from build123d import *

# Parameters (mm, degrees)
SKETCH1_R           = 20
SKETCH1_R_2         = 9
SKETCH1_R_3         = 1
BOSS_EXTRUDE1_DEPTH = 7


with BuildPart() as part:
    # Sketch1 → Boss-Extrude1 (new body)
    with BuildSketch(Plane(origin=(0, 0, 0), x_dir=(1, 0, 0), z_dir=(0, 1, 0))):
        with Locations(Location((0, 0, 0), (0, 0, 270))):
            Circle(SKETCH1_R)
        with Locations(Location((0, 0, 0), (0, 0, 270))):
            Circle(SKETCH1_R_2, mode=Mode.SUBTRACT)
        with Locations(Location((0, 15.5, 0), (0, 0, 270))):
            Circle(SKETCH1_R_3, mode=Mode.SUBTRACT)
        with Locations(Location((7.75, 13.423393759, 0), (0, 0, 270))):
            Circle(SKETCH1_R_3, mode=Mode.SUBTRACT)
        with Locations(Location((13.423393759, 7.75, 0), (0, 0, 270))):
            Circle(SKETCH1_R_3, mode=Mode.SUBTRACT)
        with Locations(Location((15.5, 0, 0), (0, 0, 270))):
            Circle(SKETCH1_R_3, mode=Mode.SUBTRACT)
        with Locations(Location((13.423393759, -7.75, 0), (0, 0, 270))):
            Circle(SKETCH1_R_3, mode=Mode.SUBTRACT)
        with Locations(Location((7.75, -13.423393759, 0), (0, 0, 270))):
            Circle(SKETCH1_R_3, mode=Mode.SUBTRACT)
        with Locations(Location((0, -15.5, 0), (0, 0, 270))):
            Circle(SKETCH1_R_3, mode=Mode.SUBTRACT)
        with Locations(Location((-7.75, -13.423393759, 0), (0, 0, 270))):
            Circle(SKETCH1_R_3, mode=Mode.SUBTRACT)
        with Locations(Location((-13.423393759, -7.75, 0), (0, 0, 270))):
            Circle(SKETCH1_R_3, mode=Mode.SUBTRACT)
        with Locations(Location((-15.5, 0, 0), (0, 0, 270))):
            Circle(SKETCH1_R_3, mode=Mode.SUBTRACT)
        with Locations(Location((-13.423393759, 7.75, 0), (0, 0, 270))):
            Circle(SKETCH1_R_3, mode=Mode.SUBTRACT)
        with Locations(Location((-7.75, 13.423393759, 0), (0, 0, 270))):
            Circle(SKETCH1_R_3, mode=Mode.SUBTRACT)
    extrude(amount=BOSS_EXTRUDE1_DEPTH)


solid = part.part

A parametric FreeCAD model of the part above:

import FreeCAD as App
import Part
import Sketcher
from FreeCAD import Vector

doc = App.newDocument("Part")
params = doc.addObject("Spreadsheet::Sheet", "Params")
for row, (alias, value) in enumerate([
    ("sketch1_diameter", "40 mm"),
    ("sketch1_diameter2", "2 mm"),
    ("sketch1_diameter3", "18 mm"),
    ("pad1_length", "7 mm"),
], start=1):
    params.set(f"A{row}", alias)
    params.set(f"B{row}", "=" + value)
    params.setAlias(f"B{row}", alias)

body = doc.addObject("PartDesign::Body", "Body")

sketch1 = doc.addObject("Sketcher::SketchObject", "Sketch")
body.addObject(sketch1)
sketch1.AttachmentSupport = (doc.XZ_Plane, [""])
sketch1.MapMode = "FlatFace"
sketch1.addGeometry(Part.Circle(Vector(0, 0, 0), Vector(0, 0, 1), 20), False)
sketch1.addGeometry(Part.Circle(Vector(-13.4, -7.8, 0), Vector(0, 0, 1), 1), False)
sketch1.addGeometry(Part.Circle(Vector(-7.8, -13.4, 0), Vector(0, 0, 1), 1), False)
sketch1.addGeometry(Part.Circle(Vector(0, -15.5, 0), Vector(0, 0, 1), 1), False)
sketch1.addGeometry(Part.Circle(Vector(-15.5, 0, 0), Vector(0, 0, 1), 1), False)
sketch1.addGeometry(Part.Circle(Vector(-13.4, 7.8, 0), Vector(0, 0, 1), 1), False)
sketch1.addGeometry(Part.Circle(Vector(-7.8, 13.4, 0), Vector(0, 0, 1), 1), False)
sketch1.addGeometry(Part.Circle(Vector(7.8, -13.4, 0), Vector(0, 0, 1), 1), False)
sketch1.addGeometry(Part.Circle(Vector(13.4, -7.8, 0), Vector(0, 0, 1), 1), False)
sketch1.addGeometry(Part.Circle(Vector(15.5, 0, 0), Vector(0, 0, 1), 1), False)
sketch1.addGeometry(Part.Circle(Vector(0, 0, 0), Vector(0, 0, 1), 9), False)
sketch1.addGeometry(Part.Circle(Vector(0, 15.5, 0), Vector(0, 0, 1), 1), False)
sketch1.addGeometry(Part.Circle(Vector(7.8, 13.4, 0), Vector(0, 0, 1), 1), False)
sketch1.addGeometry(Part.Circle(Vector(13.4, 7.8, 0), Vector(0, 0, 1), 1), False)
sketch1.addConstraint(Sketcher.Constraint("Coincident", 0, 3, -1, 1))
sketch1.addConstraint(Sketcher.Constraint("Coincident", 10, 3, -1, 1))
sketch1.addConstraint(Sketcher.Constraint("Equal", 1, 2))
sketch1.addConstraint(Sketcher.Constraint("Equal", 2, 3))
sketch1.addConstraint(Sketcher.Constraint("Equal", 3, 4))
sketch1.addConstraint(Sketcher.Constraint("Equal", 4, 5))
sketch1.addConstraint(Sketcher.Constraint("Equal", 5, 6))
sketch1.addConstraint(Sketcher.Constraint("Equal", 6, 7))
sketch1.addConstraint(Sketcher.Constraint("Equal", 7, 8))
sketch1.addConstraint(Sketcher.Constraint("Equal", 8, 9))
sketch1.addConstraint(Sketcher.Constraint("Equal", 9, 11))
sketch1.addConstraint(Sketcher.Constraint("Equal", 11, 12))
sketch1.addConstraint(Sketcher.Constraint("Equal", 12, 13))
sketch1.addConstraint(Sketcher.Constraint("Symmetric", 6, 3, 7, 3, -1, 1))
sketch1.addConstraint(Sketcher.Constraint("Symmetric", 5, 3, 8, 3, -1, 1))
sketch1.addConstraint(Sketcher.Constraint("Symmetric", 4, 3, 9, 3, -1, 1))
sketch1.addConstraint(Sketcher.Constraint("Symmetric", 3, 3, 11, 3, -1, 1))
sketch1.addConstraint(Sketcher.Constraint("Symmetric", 2, 3, 12, 3, -1, 1))
sketch1.addConstraint(Sketcher.Constraint("Symmetric", 1, 3, 13, 3, -1, 1))
sketch1.addConstraint(Sketcher.Constraint("Symmetric", 2, 3, 7, 3, -2))
sketch1.addConstraint(Sketcher.Constraint("Symmetric", 1, 3, 8, 3, -2))
sketch1.addConstraint(Sketcher.Constraint("PointOnObject", 3, 3, -2))
sketch1.addConstraint(Sketcher.Constraint("PointOnObject", 4, 3, -1))
sketch1.addConstraint(Sketcher.Constraint("Diameter", 0, 40.0))
sketch1.addConstraint(Sketcher.Constraint("Diameter", 1, 2.0))
sketch1.addConstraint(Sketcher.Constraint("Diameter", 10, 18.0))
sketch1.addConstraint(Sketcher.Constraint("DistanceY", 3, 3, -1, 1, 15.5))
sketch1.addConstraint(Sketcher.Constraint("DistanceX", 4, 3, -1, 1, 15.5))
sketch1.addConstraint(Sketcher.Constraint("DistanceY", 1, 3, 5, 3, 15.5))
sketch1.addConstraint(Sketcher.Constraint("DistanceX", 2, 3, 7, 3, 15.5))
sketch1.addConstraint(Sketcher.Constraint("DistanceX", 1, 3, -1, 1, 13.423394))
sketch1.addConstraint(Sketcher.Constraint("DistanceY", 2, 3, -1, 1, 13.423394))
sketch1.setExpression("Constraints[23]", "Params.sketch1_diameter")
sketch1.setExpression("Constraints[24]", "Params.sketch1_diameter2")
sketch1.setExpression("Constraints[25]", "Params.sketch1_diameter3")
pad1 = doc.addObject("PartDesign::Pad", "Pad")
body.addObject(pad1)
pad1.Profile = sketch1
pad1.setExpression("Length", "Params.pad1_length")
pad1.Reversed = True

doc.recompute()
